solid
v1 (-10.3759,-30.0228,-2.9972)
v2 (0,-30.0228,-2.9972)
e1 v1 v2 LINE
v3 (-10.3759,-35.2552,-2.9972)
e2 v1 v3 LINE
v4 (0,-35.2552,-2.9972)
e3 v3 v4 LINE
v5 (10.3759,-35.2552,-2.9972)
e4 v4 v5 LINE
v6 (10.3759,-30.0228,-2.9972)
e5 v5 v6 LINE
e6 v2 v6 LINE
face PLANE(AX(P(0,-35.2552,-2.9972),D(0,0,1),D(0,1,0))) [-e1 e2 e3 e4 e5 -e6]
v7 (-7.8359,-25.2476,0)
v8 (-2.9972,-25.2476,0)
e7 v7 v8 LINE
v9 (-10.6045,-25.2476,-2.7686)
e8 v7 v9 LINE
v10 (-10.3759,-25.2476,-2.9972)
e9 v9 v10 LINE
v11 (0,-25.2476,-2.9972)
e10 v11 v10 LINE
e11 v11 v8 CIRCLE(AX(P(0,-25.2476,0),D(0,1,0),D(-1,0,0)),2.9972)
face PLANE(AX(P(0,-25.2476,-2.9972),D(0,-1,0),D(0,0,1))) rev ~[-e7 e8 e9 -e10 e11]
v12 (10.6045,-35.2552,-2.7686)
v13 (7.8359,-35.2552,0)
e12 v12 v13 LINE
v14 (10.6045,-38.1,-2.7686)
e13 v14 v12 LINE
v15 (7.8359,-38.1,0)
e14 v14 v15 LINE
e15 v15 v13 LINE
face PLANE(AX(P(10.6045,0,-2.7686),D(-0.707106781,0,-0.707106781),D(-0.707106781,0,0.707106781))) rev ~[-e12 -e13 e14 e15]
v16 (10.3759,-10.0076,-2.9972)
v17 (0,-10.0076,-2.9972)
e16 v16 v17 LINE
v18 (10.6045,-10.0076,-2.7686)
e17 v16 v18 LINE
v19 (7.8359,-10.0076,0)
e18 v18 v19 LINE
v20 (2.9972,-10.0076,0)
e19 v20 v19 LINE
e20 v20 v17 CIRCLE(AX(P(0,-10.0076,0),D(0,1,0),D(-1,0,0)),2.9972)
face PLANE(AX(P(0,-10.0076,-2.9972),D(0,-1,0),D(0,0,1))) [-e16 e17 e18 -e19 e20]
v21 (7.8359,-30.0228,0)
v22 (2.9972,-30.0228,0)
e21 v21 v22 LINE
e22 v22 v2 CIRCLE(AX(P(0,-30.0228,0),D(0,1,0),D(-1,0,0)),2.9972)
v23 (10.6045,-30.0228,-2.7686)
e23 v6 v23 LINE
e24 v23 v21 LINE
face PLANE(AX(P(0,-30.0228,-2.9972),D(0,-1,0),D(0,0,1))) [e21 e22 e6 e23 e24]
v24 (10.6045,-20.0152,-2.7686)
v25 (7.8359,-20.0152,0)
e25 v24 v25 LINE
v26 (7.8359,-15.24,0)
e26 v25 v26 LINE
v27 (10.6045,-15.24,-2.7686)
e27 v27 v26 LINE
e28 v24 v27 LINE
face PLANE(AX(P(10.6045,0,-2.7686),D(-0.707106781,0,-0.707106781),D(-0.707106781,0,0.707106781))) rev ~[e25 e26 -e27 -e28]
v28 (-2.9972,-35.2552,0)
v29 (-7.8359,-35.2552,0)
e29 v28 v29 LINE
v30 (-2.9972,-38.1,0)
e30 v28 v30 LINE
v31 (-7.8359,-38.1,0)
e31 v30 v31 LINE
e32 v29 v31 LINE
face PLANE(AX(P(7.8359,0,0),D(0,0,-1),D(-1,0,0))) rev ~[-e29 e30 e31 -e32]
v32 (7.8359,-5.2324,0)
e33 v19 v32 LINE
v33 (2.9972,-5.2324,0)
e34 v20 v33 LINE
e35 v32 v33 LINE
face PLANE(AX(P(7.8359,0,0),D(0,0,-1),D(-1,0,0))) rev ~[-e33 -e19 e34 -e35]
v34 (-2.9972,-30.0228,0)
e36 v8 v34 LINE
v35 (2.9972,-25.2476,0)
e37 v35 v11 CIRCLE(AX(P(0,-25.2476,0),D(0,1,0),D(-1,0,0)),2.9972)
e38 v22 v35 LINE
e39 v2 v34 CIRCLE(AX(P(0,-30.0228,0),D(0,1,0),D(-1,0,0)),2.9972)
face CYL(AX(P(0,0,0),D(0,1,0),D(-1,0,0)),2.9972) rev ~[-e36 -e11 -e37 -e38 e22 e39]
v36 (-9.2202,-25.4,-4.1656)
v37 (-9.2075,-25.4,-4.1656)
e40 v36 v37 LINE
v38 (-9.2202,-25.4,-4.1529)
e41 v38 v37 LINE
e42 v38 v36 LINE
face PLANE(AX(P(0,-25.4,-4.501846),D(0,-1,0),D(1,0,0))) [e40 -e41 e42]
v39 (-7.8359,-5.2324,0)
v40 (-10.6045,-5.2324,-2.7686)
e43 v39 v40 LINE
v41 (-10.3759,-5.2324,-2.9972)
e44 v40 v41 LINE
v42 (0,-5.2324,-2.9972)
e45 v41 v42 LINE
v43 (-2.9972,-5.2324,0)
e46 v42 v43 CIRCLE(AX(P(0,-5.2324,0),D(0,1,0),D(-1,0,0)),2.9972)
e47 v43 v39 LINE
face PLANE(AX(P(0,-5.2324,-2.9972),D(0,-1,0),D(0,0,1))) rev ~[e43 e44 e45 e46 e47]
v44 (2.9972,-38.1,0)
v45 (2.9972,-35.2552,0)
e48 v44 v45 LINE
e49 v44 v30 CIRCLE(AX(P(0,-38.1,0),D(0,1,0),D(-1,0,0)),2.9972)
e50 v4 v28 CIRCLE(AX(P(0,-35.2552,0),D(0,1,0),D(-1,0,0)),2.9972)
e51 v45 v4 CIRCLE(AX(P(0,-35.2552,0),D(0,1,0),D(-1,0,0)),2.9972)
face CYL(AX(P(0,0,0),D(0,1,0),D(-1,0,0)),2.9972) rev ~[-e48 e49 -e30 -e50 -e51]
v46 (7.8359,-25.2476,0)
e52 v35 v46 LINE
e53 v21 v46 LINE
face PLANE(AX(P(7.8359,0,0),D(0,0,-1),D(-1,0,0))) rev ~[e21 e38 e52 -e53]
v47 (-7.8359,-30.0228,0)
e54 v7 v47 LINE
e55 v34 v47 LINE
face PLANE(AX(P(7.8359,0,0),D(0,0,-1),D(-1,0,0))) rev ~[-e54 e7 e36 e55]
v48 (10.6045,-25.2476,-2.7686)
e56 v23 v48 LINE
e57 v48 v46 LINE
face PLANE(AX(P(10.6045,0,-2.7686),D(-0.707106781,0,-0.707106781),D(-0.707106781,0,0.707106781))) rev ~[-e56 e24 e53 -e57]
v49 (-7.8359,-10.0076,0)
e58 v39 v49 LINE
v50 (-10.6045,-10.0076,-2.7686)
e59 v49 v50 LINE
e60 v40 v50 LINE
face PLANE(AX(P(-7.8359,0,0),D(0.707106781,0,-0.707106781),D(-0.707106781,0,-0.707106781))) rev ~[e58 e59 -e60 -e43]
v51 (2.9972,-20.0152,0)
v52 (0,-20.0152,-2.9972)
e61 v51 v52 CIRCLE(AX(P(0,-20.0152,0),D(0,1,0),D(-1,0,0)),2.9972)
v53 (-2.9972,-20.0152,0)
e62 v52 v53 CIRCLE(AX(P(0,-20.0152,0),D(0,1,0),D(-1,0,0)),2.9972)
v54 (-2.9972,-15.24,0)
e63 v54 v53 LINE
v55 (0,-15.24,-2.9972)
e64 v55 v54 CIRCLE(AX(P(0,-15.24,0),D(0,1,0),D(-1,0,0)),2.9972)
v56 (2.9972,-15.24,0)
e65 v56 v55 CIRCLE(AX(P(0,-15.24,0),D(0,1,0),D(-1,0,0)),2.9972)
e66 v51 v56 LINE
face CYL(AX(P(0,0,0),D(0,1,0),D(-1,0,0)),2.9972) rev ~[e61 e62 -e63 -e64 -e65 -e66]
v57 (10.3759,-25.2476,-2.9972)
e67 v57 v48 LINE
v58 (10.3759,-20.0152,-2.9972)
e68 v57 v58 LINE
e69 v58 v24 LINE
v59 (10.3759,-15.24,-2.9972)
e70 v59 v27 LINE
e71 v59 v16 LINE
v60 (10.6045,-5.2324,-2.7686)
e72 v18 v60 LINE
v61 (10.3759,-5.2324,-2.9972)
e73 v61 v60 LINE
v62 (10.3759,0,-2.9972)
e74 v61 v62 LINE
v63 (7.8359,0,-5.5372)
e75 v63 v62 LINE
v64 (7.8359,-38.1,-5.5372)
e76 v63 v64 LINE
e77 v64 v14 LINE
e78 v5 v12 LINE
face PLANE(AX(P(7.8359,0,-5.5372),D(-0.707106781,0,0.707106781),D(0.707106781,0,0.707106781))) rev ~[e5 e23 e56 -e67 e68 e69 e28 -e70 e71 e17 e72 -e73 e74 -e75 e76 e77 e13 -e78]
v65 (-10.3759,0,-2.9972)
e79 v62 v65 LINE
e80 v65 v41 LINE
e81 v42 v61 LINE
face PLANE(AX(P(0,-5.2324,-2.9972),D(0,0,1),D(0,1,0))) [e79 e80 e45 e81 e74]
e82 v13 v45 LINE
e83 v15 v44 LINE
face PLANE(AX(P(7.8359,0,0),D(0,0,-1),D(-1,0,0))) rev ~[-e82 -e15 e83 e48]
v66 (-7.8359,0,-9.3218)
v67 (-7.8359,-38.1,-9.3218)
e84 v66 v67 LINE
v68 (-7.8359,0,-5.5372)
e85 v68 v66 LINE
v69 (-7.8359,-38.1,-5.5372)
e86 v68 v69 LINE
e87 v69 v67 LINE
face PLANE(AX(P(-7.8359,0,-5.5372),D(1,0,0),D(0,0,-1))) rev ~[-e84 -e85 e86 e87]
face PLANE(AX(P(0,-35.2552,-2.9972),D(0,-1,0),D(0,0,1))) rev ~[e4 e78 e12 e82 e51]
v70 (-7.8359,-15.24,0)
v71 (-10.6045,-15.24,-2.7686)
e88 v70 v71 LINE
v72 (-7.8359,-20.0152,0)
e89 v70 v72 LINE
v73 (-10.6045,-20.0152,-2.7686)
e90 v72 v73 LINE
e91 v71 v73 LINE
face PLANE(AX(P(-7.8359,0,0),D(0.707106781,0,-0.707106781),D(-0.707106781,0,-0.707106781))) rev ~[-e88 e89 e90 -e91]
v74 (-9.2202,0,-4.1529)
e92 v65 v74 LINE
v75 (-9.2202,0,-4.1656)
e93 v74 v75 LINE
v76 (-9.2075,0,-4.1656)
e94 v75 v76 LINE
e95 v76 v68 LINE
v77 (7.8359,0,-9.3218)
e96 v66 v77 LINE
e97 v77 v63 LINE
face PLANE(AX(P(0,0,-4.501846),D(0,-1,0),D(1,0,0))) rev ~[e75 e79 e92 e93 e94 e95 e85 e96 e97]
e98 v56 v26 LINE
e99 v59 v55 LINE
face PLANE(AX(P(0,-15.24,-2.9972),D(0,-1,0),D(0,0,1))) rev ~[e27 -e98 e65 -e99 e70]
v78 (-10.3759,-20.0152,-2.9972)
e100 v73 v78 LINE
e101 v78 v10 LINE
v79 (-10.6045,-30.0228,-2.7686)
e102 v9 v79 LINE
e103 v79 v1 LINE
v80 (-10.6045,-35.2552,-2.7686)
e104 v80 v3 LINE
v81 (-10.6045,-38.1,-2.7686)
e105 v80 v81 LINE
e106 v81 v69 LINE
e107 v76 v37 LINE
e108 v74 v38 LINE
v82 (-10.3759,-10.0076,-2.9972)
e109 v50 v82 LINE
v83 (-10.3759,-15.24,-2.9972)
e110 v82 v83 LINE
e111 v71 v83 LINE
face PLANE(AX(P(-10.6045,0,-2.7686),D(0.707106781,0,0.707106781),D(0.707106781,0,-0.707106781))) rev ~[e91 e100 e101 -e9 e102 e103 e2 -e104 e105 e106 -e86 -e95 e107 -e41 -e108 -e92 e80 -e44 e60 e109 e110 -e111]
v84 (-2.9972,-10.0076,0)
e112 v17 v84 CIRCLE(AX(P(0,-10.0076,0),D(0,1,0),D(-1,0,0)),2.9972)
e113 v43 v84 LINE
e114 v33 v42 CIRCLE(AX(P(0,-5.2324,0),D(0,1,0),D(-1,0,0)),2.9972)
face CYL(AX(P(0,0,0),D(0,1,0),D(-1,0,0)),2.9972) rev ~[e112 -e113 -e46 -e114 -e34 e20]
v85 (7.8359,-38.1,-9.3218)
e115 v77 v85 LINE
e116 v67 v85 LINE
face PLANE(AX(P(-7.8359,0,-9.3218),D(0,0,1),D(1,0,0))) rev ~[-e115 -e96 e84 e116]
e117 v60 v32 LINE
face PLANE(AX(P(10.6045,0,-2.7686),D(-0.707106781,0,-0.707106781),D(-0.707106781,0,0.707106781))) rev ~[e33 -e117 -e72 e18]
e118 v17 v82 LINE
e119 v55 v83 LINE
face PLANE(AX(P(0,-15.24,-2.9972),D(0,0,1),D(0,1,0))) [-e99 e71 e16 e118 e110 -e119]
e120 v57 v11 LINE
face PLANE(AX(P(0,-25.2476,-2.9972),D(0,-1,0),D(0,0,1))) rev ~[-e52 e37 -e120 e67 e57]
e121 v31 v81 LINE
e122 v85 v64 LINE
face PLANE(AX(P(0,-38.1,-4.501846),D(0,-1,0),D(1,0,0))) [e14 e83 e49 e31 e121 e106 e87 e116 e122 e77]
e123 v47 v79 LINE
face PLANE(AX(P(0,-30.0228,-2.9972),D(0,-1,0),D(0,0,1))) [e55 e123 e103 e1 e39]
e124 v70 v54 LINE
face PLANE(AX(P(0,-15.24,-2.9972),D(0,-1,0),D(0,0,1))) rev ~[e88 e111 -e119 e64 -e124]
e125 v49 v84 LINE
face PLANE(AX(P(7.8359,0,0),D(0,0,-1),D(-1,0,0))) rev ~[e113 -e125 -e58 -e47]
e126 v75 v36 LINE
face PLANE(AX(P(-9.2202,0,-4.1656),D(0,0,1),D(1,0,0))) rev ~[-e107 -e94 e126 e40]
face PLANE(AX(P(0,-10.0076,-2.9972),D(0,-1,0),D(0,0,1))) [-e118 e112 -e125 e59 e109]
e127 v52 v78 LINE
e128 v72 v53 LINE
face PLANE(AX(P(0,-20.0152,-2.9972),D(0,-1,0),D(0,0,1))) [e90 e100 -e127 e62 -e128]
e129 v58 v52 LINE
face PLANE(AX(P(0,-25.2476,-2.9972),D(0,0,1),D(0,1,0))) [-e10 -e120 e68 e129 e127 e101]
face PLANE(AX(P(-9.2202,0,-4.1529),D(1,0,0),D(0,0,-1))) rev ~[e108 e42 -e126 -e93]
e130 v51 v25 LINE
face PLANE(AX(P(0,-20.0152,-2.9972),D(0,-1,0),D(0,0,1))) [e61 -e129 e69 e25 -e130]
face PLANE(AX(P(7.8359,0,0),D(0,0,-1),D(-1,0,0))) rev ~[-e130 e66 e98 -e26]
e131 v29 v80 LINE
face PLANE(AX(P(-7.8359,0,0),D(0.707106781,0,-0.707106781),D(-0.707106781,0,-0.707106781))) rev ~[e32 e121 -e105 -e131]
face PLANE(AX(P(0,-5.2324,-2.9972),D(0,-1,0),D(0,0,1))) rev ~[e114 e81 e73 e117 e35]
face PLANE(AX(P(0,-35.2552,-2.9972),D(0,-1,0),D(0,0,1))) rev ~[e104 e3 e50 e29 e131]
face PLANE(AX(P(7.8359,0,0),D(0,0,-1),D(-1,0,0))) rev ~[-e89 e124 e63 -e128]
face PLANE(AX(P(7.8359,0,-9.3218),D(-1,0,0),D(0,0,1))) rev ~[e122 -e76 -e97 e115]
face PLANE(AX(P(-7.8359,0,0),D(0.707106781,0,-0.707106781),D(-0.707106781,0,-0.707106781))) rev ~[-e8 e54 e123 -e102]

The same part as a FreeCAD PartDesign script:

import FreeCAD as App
import Part
import Sketcher
Q = App.Units.Quantity

doc = App.newDocument("Part")
body = doc.addObject("PartDesign::Body", "Body")

# Sketch on XZ plane
sketch1 = body.newObject("Sketcher::SketchObject", "Sketch")
sketch1.AttachmentSupport = (doc.getObject("XZ_Plane"), [""])
sketch1.MapMode = "FlatFace"
sketch1.addGeometry(Part.LineSegment(App.Vector(7.8, 0, 0), App.Vector(-7.8, 0, 0)), False)
sketch1.addGeometry(Part.LineSegment(App.Vector(-7.8, 0, 0), App.Vector(-10.6, -2.8, 0)), False)
sketch1.addGeometry(Part.LineSegment(App.Vector(-10.6, -2.8, 0), App.Vector(-7.8, -5.5, 0)), False)
sketch1.addGeometry(Part.LineSegment(App.Vector(-7.8, -5.5, 0), App.Vector(-7.8, -9.3, 0)), False)
sketch1.addGeometry(Part.LineSegment(App.Vector(-7.8, -9.3, 0), App.Vector(7.8, -9.3, 0)), False)
sketch1.addGeometry(Part.LineSegment(App.Vector(7.8, -9.3, 0), App.Vector(7.8, -5.5, 0)), False)
sketch1.addGeometry(Part.LineSegment(App.Vector(7.8, -5.5, 0), App.Vector(10.6, -2.8, 0)), False)
sketch1.addGeometry(Part.LineSegment(App.Vector(10.6, -2.8, 0), App.Vector(7.8, 0, 0)), False)
sketch1.addConstraint(Sketcher.Constraint("Coincident", 0, 2, 1, 1))
sketch1.addConstraint(Sketcher.Constraint("Coincident", 1, 2, 2, 1))
sketch1.addConstraint(Sketcher.Constraint("Coincident", 2, 2, 3, 1))
sketch1.addConstraint(Sketcher.Constraint("Coincident", 3, 2, 4, 1))
sketch1.addConstraint(Sketcher.Constraint("Coincident", 4, 2, 5, 1))
sketch1.addConstraint(Sketcher.Constraint("Coincident", 5, 2, 6, 1))
sketch1.addConstraint(Sketcher.Constraint("Coincident", 6, 2, 7, 1))
sketch1.addConstraint(Sketcher.Constraint("Coincident", 7, 2, 0, 1))
sketch1.addConstraint(Sketcher.Constraint("Horizontal", 0))
sketch1.addConstraint(Sketcher.Constraint("Vertical", 3))
sketch1.addConstraint(Sketcher.Constraint("Horizontal", 4))
sketch1.addConstraint(Sketcher.Constraint("Vertical", 5))
sketch1.addConstraint(Sketcher.Constraint("Symmetric", 0, 2, 7, 2, -1, 1))
sketch1.addConstraint(Sketcher.Constraint("Symmetric", 2, 2, 5, 2, -2))
sketch1.addConstraint(Sketcher.Constraint("Symmetric", 1, 2, 6, 2, -2))
sketch1.addConstraint(Sketcher.Constraint("Perpendicular", 1, 2))
sketch1.addConstraint(Sketcher.Constraint("Perpendicular", 2, 6))
sketch1.addConstraint(Sketcher.Constraint("Vertical", 0, 2, 2, 2))
sketch1.addConstraint(Sketcher.Constraint("DistanceX", 0, 2, 0, 1, Q("0.617 in")))
sketch1.addConstraint(Sketcher.Constraint("DistanceY", 3, 2, 3, 1, Q("0.149 in")))
sketch1.addConstraint(Sketcher.Constraint("DistanceY", 1, 2, -1, 1, Q("0.109 in")))
pad1 = body.newObject("PartDesign::Pad", "Pad")
pad1.Profile = sketch1
pad1.Length = Q("1.5 in")

# Sketch on XZ plane
sketch2 = body.newObject("Sketcher::SketchObject", "Sketch001")
sketch2.AttachmentSupport = (doc.getObject("XZ_Plane"), [""])
sketch2.MapMode = "FlatFace"
sketch2.addGeometry(Part.LineSegment(App.Vector(7.836, 0, 0), App.Vector(-7.836, 0, 0)), False)
sketch2.addGeometry(Part.LineSegment(App.Vector(-7.836, 0, 0), App.Vector(-10.604, -2.769, 0)), False)
sketch2.addGeometry(Part.LineSegment(App.Vector(-10.604, -2.769, 0), App.Vector(-9.22, -4.153, 0)), False)
sketch2.addGeometry(Part.LineSegment(App.Vector(-9.22, -4.153, 0), App.Vector(-9.22, -4.166, 0)), False)
sketch2.addGeometry(Part.LineSegment(App.Vector(-9.22, -4.166, 0), App.Vector(-9.207, -4.166, 0)), False)
sketch2.addGeometry(Part.LineSegment(App.Vector(-9.207, -4.166, 0), App.Vector(-7.836, -5.537, 0)), False)
sketch2.addGeometry(Part.LineSegment(App.Vector(-7.836, -5.537, 0), App.Vector(-7.836, -9.322, 0)), False)
sketch2.addGeometry(Part.LineSegment(App.Vector(-7.836, -9.322, 0), App.Vector(7.836, -9.322, 0)), False)
sketch2.addGeometry(Part.LineSegment(App.Vector(7.836, -9.322, 0), App.Vector(7.836, -5.537, 0)), False)
sketch2.addGeometry(Part.LineSegment(App.Vector(7.836, -5.537, 0), App.Vector(10.604, -2.769, 0)), False)
sketch2.addGeometry(Part.LineSegment(App.Vector(10.604, -2.769, 0), App.Vector(7.836, 0, 0)), False)
sketch2.addConstraint(Sketcher.Constraint("Coincident", 0, 2, 1, 1))
sketch2.addConstraint(Sketcher.Constraint("Coincident", 1, 2, 2, 1))
sketch2.addConstraint(Sketcher.Constraint("Coincident", 2, 2, 3, 1))
sketch2.addConstraint(Sketcher.Constraint("Coincident", 3, 2, 4, 1))
sketch2.addConstraint(Sketcher.Constraint("Coincident", 4, 2, 5, 1))
sketch2.addConstraint(Sketcher.Constraint("Coincident", 5, 2, 6, 1))
sketch2.addConstraint(Sketcher.Constraint("Coincident", 6, 2, 7, 1))
sketch2.addConstraint(Sketcher.Constraint("Coincident", 7, 2, 8, 1))
sketch2.addConstraint(Sketcher.Constraint("Coincident", 8, 2, 9, 1))
sketch2.addConstraint(Sketcher.Constraint("Coincident", 9, 2, 10, 1))
sketch2.addConstraint(Sketcher.Constraint("Coincident", 10, 2, 0, 1))
sketch2.addConstraint(Sketcher.Constraint("Horizontal", 0))
sketch2.addConstraint(Sketcher.Constraint("Vertical", 3))
sketch2.addConstraint(Sketcher.Constraint("Horizontal", 4))
sketch2.addConstraint(Sketcher.Constraint("Vertical", 6))
sketch2.addConstraint(Sketcher.Constraint("Horizontal", 7))
sketch2.addConstraint(Sketcher.Constraint("Vertical", 8))
sketch2.addConstraint(Sketcher.Constraint("Symmetric", 0, 2, 10, 2, -1, 1))
sketch2.addConstraint(Sketcher.Constraint("Symmetric", 5, 2, 8, 2, -2))
sketch2.addConstraint(Sketcher.Constraint("Symmetric", 1, 2, 9, 2, -2))
sketch2.addConstraint(Sketcher.Constraint("Perpendicular", 1, 2))
sketch2.addConstraint(Sketcher.Constraint("Parallel", 2, 5))
sketch2.addConstraint(Sketcher.Constraint("Perpendicular", 5, 9))
sketch2.addConstraint(Sketcher.Constraint("Perpendicular", 9, 10))
sketch2.addConstraint(Sketcher.Constraint("Vertical", 0, 2, 5, 2))
sketch2.addConstraint(Sketcher.Constraint("DistanceX", 0, 2, 0, 1, Q("0.617 in")))
sketch2.addConstraint(Sketcher.Constraint("DistanceY", 6, 2, 6, 1, Q("0.149 in")))
sketch2.addConstraint(Sketcher.Constraint("DistanceX", 4, 1, 4, 2, Q("0.0005 in")))
sketch2.addConstraint(Sketcher.Constraint("DistanceY", 1, 2, -1, 1, Q("0.109 in")))
sketch2.addConstraint(Sketcher.Constraint("DistanceX", 2, 2, -1, 1, Q("0.363 in")))
pad2 = body.newObject("PartDesign::Pad", "Pad001")
pad2.Profile = sketch2
pad2.Length = Q("1 in")

# Sketch on YZ plane
sketch3 = body.newObject("Sketcher::SketchObject", "Sketch002")
sketch3.AttachmentSupport = (doc.getObject("YZ_Plane"), [""])
sketch3.MapMode = "FlatFace"
sketch3.addGeometry(Part.LineSegment(App.Vector(-5.2, 0, 0), App.Vector(-5.2, -3, 0)), False)
sketch3.addGeometry(Part.LineSegment(App.Vector(-5.2, -3, 0), App.Vector(0, -3, 0)), False)
sketch3.addGeometry(Part.LineSegment(App.Vector(0, -3, 0), App.Vector(0, 0, 0)), False)
sketch3.addGeometry(Part.LineSegment(App.Vector(0, 0, 0), App.Vector(-5.2, 0, 0)), False)
sketch3.addGeometry(Part.LineSegment(App.Vector(-10, -3, 0), App.Vector(-10, 0, 0)), False)
sketch3.addGeometry(Part.LineSegment(App.Vector(-10, 0, 0), App.Vector(-15.2, 0, 0)), False)
sketch3.addGeometry(Part.LineSegment(App.Vector(-15.2, 0, 0), App.Vector(-15.2, -3, 0)), False)
sketch3.addGeometry(Part.LineSegment(App.Vector(-15.2, -3, 0), App.Vector(-10, -3, 0)), False)
sketch3.addGeometry(Part.LineSegment(App.Vector(-20, -3, 0), App.Vector(-20, 0, 0)), False)
sketch3.addGeometry(Part.LineSegment(App.Vector(-20, 0, 0), App.Vector(-25.2, 0, 0)), False)
sketch3.addGeometry(Part.LineSegment(App.Vector(-25.2, 0, 0), App.Vector(-25.2, -3, 0)), False)
sketch3.addGeometry(Part.LineSegment(App.Vector(-25.2, -3, 0), App.Vector(-20, -3, 0)), False)
sketch3.addGeometry(Part.LineSegment(App.Vector(-35.3, 0, 0), App.Vector(-35.3, -3, 0)), False)
sketch3.addGeometry(Part.LineSegment(App.Vector(-35.3, -3, 0), App.Vector(-30, -3, 0)), False)
sketch3.addGeometry(Part.LineSegment(App.Vector(-30, -3, 0), App.Vector(-30, 0, 0)), False)
sketch3.addGeometry(Part.LineSegment(App.Vector(-30, 0, 0), App.Vector(-35.3, 0, 0)), False)
sketch3.addGeometry(Part.LineSegment(App.Vector(-45.3, 0, 0), App.Vector(-45.3, -3, 0)), False)
sketch3.addGeometry(Part.LineSegment(App.Vector(-45.3, -3, 0), App.Vector(-40, -3, 0)), False)
sketch3.addGeometry(Part.LineSegment(App.Vector(-40, -3, 0), App.Vector(-40, 0, 0)), False)
sketch3.addGeometry(Part.LineSegment(App.Vector(-40, 0, 0), App.Vector(-45.3, 0, 0)), False)
sketch3.addConstraint(Sketcher.Constraint("Coincident", 0, 2, 1, 1))
sketch3.addConstraint(Sketcher.Constraint("Coincident", 1, 2, 2, 1))
sketch3.addConstraint(Sketcher.Constraint("Coincident", 2, 2, 3, 1))
sketch3.addConstraint(Sketcher.Constraint("Coincident", 3, 2, 0, 1))
sketch3.addConstraint(Sketcher.Constraint("Coincident", 4, 2, 5, 1))
sketch3.addConstraint(Sketcher.Constraint("Coincident", 5, 2, 6, 1))
sketch3.addConstraint(Sketcher.Constraint("Coincident", 6, 2, 7, 1))
sketch3.addConstraint(Sketcher.Constraint("Coincident", 7, 2, 4, 1))
sketch3.addConstraint(Sketcher.Constraint("Coincident", 8, 2, 9, 1))
sketch3.addConstraint(Sketcher.Constraint("Coincident", 9, 2, 10, 1))
sketch3.addConstraint(Sketcher.Constraint("Coincident", 10, 2, 11, 1))
sketch3.addConstraint(Sketcher.Constraint("Coincident", 11, 2, 8, 1))
sketch3.addConstraint(Sketcher.Constraint("Coincident", 12, 2, 13, 1))
sketch3.addConstraint(Sketcher.Constraint("Coincident", 13, 2, 14, 1))
sketch3.addConstraint(Sketcher.Constraint("Coincident", 14, 2, 15, 1))
sketch3.addConstraint(Sketcher.Constraint("Coincident", 15, 2, 12, 1))
sketch3.addConstraint(Sketcher.Constraint("Coincident", 16, 2, 17, 1))
sketch3.addConstraint(Sketcher.Constraint("Coincident", 17, 2, 18, 1))
sketch3.addConstraint(Sketcher.Constraint("Coincident", 18, 2, 19, 1))
sketch3.addConstraint(Sketcher.Constraint("Coincident", 19, 2, 16, 1))
sketch3.addConstraint(Sketcher.Constraint("Vertical", 0))
sketch3.addConstraint(Sketcher.Constraint("Horizontal", 1))
sketch3.addConstraint(Sketcher.Constraint("Vertical", 2))
sketch3.addConstraint(Sketcher.Constraint("Horizontal", 3))
sketch3.addConstraint(Sketcher.Constraint("Vertical", 4))
sketch3.addConstraint(Sketcher.Constraint("Horizontal", 5))
sketch3.addConstraint(Sketcher.Constraint("Vertical", 6))
sketch3.addConstraint(Sketcher.Constraint("Horizontal", 7))
sketch3.addConstraint(Sketcher.Constraint("Vertical", 8))
sketch3.addConstraint(Sketcher.Constraint("Horizontal", 9))
sketch3.addConstraint(Sketcher.Constraint("Vertical", 10))
sketch3.addConstraint(Sketcher.Constraint("Horizontal", 11))
sketch3.addConstraint(Sketcher.Constraint("Vertical", 12))
sketch3.addConstraint(Sketcher.Constraint("Horizontal", 13))
sketch3.addConstraint(Sketcher.Constraint("Vertical", 14))
sketch3.addConstraint(Sketcher.Constraint("Horizontal", 15))
sketch3.addConstraint(Sketcher.Constraint("Vertical", 16))
sketch3.addConstraint(Sketcher.Constraint("Horizontal", 17))
sketch3.addConstraint(Sketcher.Constraint("Vertical", 18))
sketch3.addConstraint(Sketcher.Constraint("Horizontal", 19))
sketch3.addConstraint(Sketcher.Constraint("Coincident", 2, 2, -1, 1))
sketch3.addConstraint(Sketcher.Constraint("PointOnObject", 4, 2, -1))
sketch3.addConstraint(Sketcher.Constraint("PointOnObject", 8, 2, -1))
sketch3.addConstraint(Sketcher.Constraint("PointOnObject", 14, 2, -1))
sketch3.addConstraint(Sketcher.Constraint("PointOnObject", 18, 2, -1))
sketch3.addConstraint(Sketcher.Constraint("Horizontal", 1, 2, 6, 2))
sketch3.addConstraint(Sketcher.Constraint("Horizontal", 7, 2, 10, 2))
sketch3.addConstraint(Sketcher.Constraint("Horizontal", 11, 2, 12, 2))
sketch3.addConstraint(Sketcher.Constraint("Horizontal", 13, 2, 16, 2))
sketch3.addConstraint(Sketcher.Constraint("Equal", 3, 5))
sketch3.addConstraint(Sketcher.Constraint("Equal", 7, 9))
sketch3.addConstraint(Sketcher.Constraint("Equal", 11, 13))
sketch3.addConstraint(Sketcher.Constraint("Equal", 15, 17))
sketch3.addConstraint(Sketcher.Constraint("DistanceX", 5, 2, -1, 1, Q("0.6 in")))
sketch3.addConstraint(Sketcher.Constraint("DistanceX", 9, 2, 4, 2, Q("0.6 in")))
sketch3.addConstraint(Sketcher.Constraint("DistanceX", 12, 2, 11, 2, Q("0.6 in")))
sketch3.addConstraint(Sketcher.Constraint("DistanceX", 16, 2, 13, 2, Q("0.6 in")))
sketch3.addConstraint(Sketcher.Constraint("DistanceX", 1, 1, 1, 2, Q("0.206 in")))
sketch3.addConstraint(Sketcher.Constraint("DistanceY", 0, 2, 0, 1, Q("0.118 in")))
pocket1 = body.newObject("PartDesign::Pocket", "Pocket")
pocket1.Profile = sketch3
pocket1.Length = Q("1 in")
pocket1.Midplane = True

# Sketch on XZ plane
sketch4 = body.newObject("Sketcher::SketchObject", "Sketch003")
sketch4.AttachmentSupport = (doc.getObject("XZ_Plane"), [""])
sketch4.MapMode = "FlatFace"
sketch4.addGeometry(Part.Circle(App.Vector(0, 0, 0), App.Vector(0, 0, 1), 3), False)
sketch4.addConstraint(Sketcher.Constraint("Coincident", 0, 3, -1, 1))
sketch4.addConstraint(Sketcher.Constraint("Diameter", 0, Q("0.236 in")))
pocket2 = body.newObject("PartDesign::Pocket", "Pocket001")
pocket2.Profile = sketch4
pocket2.Length = Q("1.5 in")
pocket2.Reversed = True

doc.recompute()
